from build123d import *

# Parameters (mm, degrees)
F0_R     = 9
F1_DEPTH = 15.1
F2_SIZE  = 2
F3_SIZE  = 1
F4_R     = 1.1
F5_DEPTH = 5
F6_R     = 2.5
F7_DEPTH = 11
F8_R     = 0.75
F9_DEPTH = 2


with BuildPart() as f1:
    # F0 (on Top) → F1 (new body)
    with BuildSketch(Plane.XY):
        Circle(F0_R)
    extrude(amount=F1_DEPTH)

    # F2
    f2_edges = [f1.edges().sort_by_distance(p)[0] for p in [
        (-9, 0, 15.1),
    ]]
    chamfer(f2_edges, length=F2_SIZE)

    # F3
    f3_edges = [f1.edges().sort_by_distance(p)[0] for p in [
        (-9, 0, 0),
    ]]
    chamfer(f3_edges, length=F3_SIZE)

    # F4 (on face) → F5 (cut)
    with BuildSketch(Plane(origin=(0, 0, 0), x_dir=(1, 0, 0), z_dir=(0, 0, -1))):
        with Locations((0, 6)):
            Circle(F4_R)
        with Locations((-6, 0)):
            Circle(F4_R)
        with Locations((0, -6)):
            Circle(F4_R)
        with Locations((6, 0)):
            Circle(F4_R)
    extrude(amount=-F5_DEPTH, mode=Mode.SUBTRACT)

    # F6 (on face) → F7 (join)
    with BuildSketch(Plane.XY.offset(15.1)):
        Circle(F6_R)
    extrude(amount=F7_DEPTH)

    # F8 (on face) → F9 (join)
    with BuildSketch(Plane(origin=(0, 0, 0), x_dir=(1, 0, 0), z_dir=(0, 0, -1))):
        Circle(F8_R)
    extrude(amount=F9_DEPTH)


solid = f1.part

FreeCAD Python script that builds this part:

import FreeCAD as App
import Part
import Sketcher
Q = App.Units.Quantity


def edges_at(feature, points):
    """Names of the edges that pass closest to the given points."""
    edges = feature.Shape.Edges
    near = lambda p: min(range(len(edges)), key=lambda i: edges[i].distToShape(Part.Vertex(*p))[0])
    return sorted({f"Edge{near(p) + 1}" for p in points})

doc = App.newDocument("Part")
params = doc.addObject("Spreadsheet::Sheet", "Params")
for row, (alias, value) in enumerate([
    ("sketch1_diameter", "18 mm"),
    ("pad1_length", "15.1 mm"),
    ("chamfer_size", "2 mm"),
    ("chamfer2_size", "1 mm"),
    ("sketch2_diameter", "2.2 mm"),
    ("pocket1_length", "5 mm"),
    ("sketch3_diameter", "5 mm"),
    ("pad2_length", "11 mm"),
    ("sketch4_diameter", "1.5 mm"),
    ("pad3_length", "2 mm"),
], start=1):
    params.set(f"A{row}", alias)
    params.set(f"B{row}", "=" + value)
    params.setAlias(f"B{row}", alias)

body = doc.addObject("PartDesign::Body", "Body")

# Sketch on XY plane
sketch1 = body.newObject("Sketcher::SketchObject", "Sketch")
sketch1.AttachmentSupport = (doc.getObject("XY_Plane"), [""])
sketch1.MapMode = "FlatFace"
sketch1.addGeometry(Part.Circle(App.Vector(0, 0, 0), App.Vector(0, 0, 1), 9), False)
sketch1.addConstraint([
    Sketcher.Constraint("Coincident", 0, 3, -1, 1),
    Sketcher.Constraint("Diameter", 0, Q("18 mm")),
])
sketch1.setExpression("Constraints[1]", "Params.sketch1_diameter")
pad1 = body.newObject("PartDesign::Pad", "Pad")
pad1.Profile = sketch1
pad1.setExpression("Length", "Params.pad1_length")
doc.recompute()

chamfer = body.newObject("PartDesign::Chamfer", "Chamfer")
chamfer.Base = (pad1, edges_at(pad1, [(-9, 0, 15.1)]))
chamfer.setExpression("Size", "Params.chamfer_size")
doc.recompute()

chamfer2 = body.newObject("PartDesign::Chamfer", "Chamfer001")
chamfer2.Base = (chamfer, edges_at(chamfer, [(-9, 0, 0)]))
chamfer2.setExpression("Size", "Params.chamfer2_size")

# Sketch on XY plane
sketch2 = body.newObject("Sketcher::SketchObject", "Sketch001")
sketch2.AttachmentSupport = (doc.getObject("XY_Plane"), [""])
sketch2.MapMode = "FlatFace"
sketch2.addGeometry([
    Part.Circle(App.Vector(0, -6, 0), App.Vector(0, 0, 1), 1.1),
    Part.Circle(App.Vector(-6, 0, 0), App.Vector(0, 0, 1), 1.1),
    Part.Circle(App.Vector(0, 6, 0), App.Vector(0, 0, 1), 1.1),
    Part.Circle(App.Vector(6, 0, 0), App.Vector(0, 0, 1), 1.1),
], False)
sketch2.addConstraint([
    Sketcher.Constraint("Equal", 0, 1),
    Sketcher.Constraint("Equal", 1, 2),
    Sketcher.Constraint("Equal", 2, 3),
    Sketcher.Constraint("Symmetric", 0, 3, 2, 3, -1, 1),
    Sketcher.Constraint("Symmetric", 1, 3, 3, 3, -1, 1),
    Sketcher.Constraint("PointOnObject", 0, 3, -2),
    Sketcher.Constraint("PointOnObject", 1, 3, -1),
    Sketcher.Constraint("Diameter", 0, Q("2.2 mm")),
    Sketcher.Constraint("DistanceY", 0, 3, -1, 1, Q("6 mm")),
    Sketcher.Constraint("DistanceX", 1, 3, -1, 1, Q("6 mm")),
])
sketch2.setExpression("Constraints[7]", "Params.sketch2_diameter")
pocket1 = body.newObject("PartDesign::Pocket", "Pocket")
pocket1.Profile = sketch2
pocket1.setExpression("Length", "Params.pocket1_length")
pocket1.Reversed = True

# Sketch on XY plane
sketch3 = body.newObject("Sketcher::SketchObject", "Sketch002")
sketch3.AttachmentSupport = (doc.getObject("XY_Plane"), [""])
sketch3.MapMode = "FlatFace"
sketch3.AttachmentOffset = App.Placement(App.Vector(0, 0, 15.1), App.Rotation())
sketch3.addGeometry(Part.Circle(App.Vector(0, 0, 0), App.Vector(0, 0, 1), 2.5), False)
sketch3.addConstraint([
    Sketcher.Constraint("Coincident", 0, 3, -1, 1),
    Sketcher.Constraint("Diameter", 0, Q("5 mm")),
])
sketch3.setExpression("Constraints[1]", "Params.sketch3_diameter")
pad2 = body.newObject("PartDesign::Pad", "Pad001")
pad2.Profile = sketch3
pad2.setExpression("Length", "Params.pad2_length")

# Sketch on XY plane
sketch4 = body.newObject("Sketcher::SketchObject", "Sketch003")
sketch4.AttachmentSupport = (doc.getObject("XY_Plane"), [""])
sketch4.MapMode = "FlatFace"
sketch4.addGeometry(Part.Circle(App.Vector(0, 0, 0), App.Vector(0, 0, 1), 0.75), False)
sketch4.addConstraint([
    Sketcher.Constraint("Coincident", 0, 3, -1, 1),
    Sketcher.Constraint("Diameter", 0, Q("1.5 mm")),
])
sketch4.setExpression("Constraints[1]", "Params.sketch4_diameter")
pad3 = body.newObject("PartDesign::Pad", "Pad002")
pad3.Profile = sketch4
pad3.setExpression("Length", "Params.pad3_length")
pad3.Reversed = True

doc.recompute()
